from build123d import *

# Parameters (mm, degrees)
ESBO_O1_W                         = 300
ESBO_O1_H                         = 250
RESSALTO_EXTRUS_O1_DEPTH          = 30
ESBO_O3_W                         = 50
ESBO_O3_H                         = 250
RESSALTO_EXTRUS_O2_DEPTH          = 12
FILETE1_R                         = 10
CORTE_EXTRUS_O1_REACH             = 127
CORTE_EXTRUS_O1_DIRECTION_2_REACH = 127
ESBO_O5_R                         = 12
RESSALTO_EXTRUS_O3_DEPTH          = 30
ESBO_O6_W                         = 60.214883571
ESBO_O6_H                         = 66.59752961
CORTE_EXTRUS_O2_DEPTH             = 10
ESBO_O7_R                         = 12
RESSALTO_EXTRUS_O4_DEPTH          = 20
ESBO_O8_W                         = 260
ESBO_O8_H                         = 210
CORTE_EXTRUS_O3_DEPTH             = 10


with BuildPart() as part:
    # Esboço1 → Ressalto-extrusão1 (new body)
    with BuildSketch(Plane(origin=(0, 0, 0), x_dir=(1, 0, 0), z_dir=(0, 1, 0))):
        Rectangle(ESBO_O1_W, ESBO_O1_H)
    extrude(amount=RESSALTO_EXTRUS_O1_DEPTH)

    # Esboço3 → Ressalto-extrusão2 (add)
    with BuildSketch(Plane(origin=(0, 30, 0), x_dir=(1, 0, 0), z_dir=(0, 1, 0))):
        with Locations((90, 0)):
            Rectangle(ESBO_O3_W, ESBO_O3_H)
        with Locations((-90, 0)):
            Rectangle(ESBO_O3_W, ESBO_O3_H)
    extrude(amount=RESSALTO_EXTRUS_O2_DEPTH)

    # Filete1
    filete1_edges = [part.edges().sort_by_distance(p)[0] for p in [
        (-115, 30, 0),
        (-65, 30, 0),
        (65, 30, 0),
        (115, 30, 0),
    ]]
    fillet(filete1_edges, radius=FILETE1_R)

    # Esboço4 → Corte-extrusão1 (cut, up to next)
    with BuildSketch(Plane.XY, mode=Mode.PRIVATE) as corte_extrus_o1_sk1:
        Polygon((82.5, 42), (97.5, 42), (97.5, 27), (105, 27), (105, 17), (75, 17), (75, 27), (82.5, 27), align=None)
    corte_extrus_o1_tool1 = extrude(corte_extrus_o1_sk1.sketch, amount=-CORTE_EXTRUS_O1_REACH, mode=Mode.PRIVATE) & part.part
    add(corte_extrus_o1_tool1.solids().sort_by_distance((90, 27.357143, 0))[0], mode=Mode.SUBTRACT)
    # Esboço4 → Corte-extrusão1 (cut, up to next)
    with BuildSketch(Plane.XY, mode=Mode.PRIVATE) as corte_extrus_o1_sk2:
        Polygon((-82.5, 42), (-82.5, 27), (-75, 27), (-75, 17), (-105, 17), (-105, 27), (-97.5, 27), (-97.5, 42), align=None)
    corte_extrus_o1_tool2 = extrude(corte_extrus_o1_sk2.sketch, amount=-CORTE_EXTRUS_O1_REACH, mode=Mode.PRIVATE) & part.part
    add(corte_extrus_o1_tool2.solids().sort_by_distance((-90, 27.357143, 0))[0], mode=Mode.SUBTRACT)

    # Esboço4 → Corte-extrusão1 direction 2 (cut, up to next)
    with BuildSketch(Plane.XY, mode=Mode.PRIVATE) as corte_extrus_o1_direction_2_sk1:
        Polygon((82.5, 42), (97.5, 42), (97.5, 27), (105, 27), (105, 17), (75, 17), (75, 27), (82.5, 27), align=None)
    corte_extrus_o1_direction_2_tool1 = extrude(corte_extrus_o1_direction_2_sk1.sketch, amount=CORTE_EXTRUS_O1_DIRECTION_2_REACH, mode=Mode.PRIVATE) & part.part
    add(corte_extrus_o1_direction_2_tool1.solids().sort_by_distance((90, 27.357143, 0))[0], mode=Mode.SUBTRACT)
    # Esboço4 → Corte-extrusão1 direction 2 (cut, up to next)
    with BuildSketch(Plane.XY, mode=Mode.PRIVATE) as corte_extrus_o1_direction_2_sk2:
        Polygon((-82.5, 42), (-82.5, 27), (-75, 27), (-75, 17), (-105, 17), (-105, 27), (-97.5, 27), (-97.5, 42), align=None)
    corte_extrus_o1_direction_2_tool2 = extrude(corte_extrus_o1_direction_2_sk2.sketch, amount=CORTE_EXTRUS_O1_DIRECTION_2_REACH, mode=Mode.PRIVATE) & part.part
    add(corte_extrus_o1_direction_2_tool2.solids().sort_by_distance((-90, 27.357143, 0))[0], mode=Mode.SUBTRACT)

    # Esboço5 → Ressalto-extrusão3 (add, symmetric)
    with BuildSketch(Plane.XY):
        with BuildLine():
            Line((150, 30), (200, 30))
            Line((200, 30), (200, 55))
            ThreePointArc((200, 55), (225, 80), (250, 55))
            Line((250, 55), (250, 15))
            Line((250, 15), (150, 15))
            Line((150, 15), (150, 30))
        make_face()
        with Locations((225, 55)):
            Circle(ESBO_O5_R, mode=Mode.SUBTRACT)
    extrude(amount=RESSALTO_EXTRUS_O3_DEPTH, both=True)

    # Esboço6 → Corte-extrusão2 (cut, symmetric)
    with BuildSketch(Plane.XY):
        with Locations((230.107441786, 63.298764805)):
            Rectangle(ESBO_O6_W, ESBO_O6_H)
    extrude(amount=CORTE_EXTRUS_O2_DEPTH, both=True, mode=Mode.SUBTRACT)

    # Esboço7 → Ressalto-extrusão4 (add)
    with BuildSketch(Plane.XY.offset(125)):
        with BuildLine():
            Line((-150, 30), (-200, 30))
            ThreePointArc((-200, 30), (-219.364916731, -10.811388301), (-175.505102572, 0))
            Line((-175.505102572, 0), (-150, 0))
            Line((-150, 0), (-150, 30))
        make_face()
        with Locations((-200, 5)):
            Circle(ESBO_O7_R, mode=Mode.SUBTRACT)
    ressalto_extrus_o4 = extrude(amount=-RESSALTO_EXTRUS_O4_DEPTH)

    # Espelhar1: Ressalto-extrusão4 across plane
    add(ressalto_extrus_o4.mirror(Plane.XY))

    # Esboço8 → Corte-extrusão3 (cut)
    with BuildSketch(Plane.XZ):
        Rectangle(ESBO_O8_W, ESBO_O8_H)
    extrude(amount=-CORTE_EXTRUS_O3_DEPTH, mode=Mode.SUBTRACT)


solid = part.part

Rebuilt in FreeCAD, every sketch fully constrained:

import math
import FreeCAD as App
import Part
import Sketcher

V = App.Vector


def edges_at(feature, points):
    """Names of the edges that pass closest to the given points."""
    edges = feature.Shape.Edges
    near = lambda p: min(range(len(edges)), key=lambda i: edges[i].distToShape(Part.Vertex(*p))[0])
    return sorted({f"Edge{near(p) + 1}" for p in points})


def add_polygon(sketch, points):
    """Adds a closed chain of lines whose ends are joined by coincident constraints."""
    first, n = sketch.GeometryCount, len(points)
    for a, b in zip(points, points[1:] + points[:1]):
        sketch.addGeometry(Part.LineSegment(App.Vector(*a, 0), App.Vector(*b, 0)), False)
    for i in range(n):
        sketch.addConstraint(Sketcher.Constraint("Coincident", first + i, 2, first + (i + 1) % n, 1))

doc = App.newDocument("Part")
params = doc.addObject("Spreadsheet::Sheet", "Params")
for row, (alias, value) in enumerate([
    ("sketch1_width", "300 mm"),
    ("sketch1_height", "250 mm"),
    ("pad1_length", "30 mm"),
    ("sketch2_width", "50 mm"),
    ("sketch2_height", "250 mm"),
    ("pad2_length", "12 mm"),
    ("fillet_radius", "10 mm"),
    ("sketch3_width", "15 mm"),
    ("sketch3_width2", "30 mm"),
    ("sketch3_height", "10 mm"),
    ("sketch4_width", "15 mm"),
    ("sketch4_width2", "30 mm"),
    ("sketch4_height", "10 mm"),
    ("sketch5_width", "15 mm"),
    ("sketch5_width2", "30 mm"),
    ("sketch5_height", "10 mm"),
    ("sketch6_width", "15 mm"),
    ("sketch6_width2", "30 mm"),
    ("sketch6_height", "10 mm"),
    ("sketch7_diameter", "24 mm"),
    ("sketch7_radius", "25 mm"),
    ("sketch7_width", "50 mm"),
    ("sketch7_height", "15 mm"),
    ("sketch7_height2", "40 mm"),
    ("pad3_length", "60 mm"),
    ("pocket5_length", "20 mm"),
    ("sketch9_diameter", "24 mm"),
    ("sketch9_radius", "25 mm"),
    ("sketch9_width", "50 mm"),
    ("sketch9_height", "30 mm"),
    ("pad4_length", "20 mm"),
    ("sketch10_width", "260 mm"),
    ("sketch10_height", "210 mm"),
    ("pocket6_length", "10 mm"),
], start=1):
    params.set(f"A{row}", alias)
    params.set(f"B{row}", "=" + value)
    params.setAlias(f"B{row}", alias)

body = doc.addObject("PartDesign::Body", "Body")

sketch1 = doc.addObject("Sketcher::SketchObject", "Sketch")
body.addObject(sketch1)
sketch1.AttachmentSupport = (doc.XZ_Plane, [""])
sketch1.MapMode = "FlatFace"
add_polygon(sketch1, [(-150, -125), (-150, 125), (150, 125), (150, -125)])
sketch1.addConstraint([
    Sketcher.Constraint("Vertical", 0),
    Sketcher.Constraint("Horizontal", 1),
    Sketcher.Constraint("Vertical", 2),
    Sketcher.Constraint("Horizontal", 3),
    Sketcher.Constraint("Symmetric", 0, 2, 2, 2, -1, 1),
    Sketcher.Constraint("DistanceX", 1, 1, 1, 2, 300.0),
    Sketcher.Constraint("DistanceY", 0, 1, 0, 2, 250.0),
])
sketch1.setExpression("Constraints[9]", "Params.sketch1_width")
sketch1.setExpression("Constraints[10]", "Params.sketch1_height")
pad1 = doc.addObject("PartDesign::Pad", "Pad")
body.addObject(pad1)
pad1.Profile = sketch1
pad1.setExpression("Length", "Params.pad1_length")
pad1.Reversed = True

sketch2 = doc.addObject("Sketcher::SketchObject", "Sketch001")
body.addObject(sketch2)
sketch2.AttachmentSupport = (doc.XZ_Plane, [""])
sketch2.MapMode = "FlatFace"
sketch2.AttachmentOffset = App.Placement(V(0, 0, -30), App.Rotation())
add_polygon(sketch2, [(65, -125), (65, 125), (115, 125), (115, -125)])
add_polygon(sketch2, [(-115, -125), (-115, 125), (-65, 125), (-65, -125)])
sketch2.addConstraint([
    Sketcher.Constraint("Vertical", 0),
    Sketcher.Constraint("Horizontal", 1),
    Sketcher.Constraint("Vertical", 2),
    Sketcher.Constraint("Horizontal", 3),
    Sketcher.Constraint("Vertical", 4),
    Sketcher.Constraint("Horizontal", 5),
    Sketcher.Constraint("Vertical", 6),
    Sketcher.Constraint("Horizontal", 7),
    Sketcher.Constraint("Symmetric", 2, 2, 4, 2, -1, 1),
    Sketcher.Constraint("Symmetric", 0, 2, 6, 2, -1, 1),
    Sketcher.Constraint("Horizontal", 1, 2, 4, 2),
    Sketcher.Constraint("DistanceX", 1, 1, 1, 2, 50.0),
    Sketcher.Constraint("DistanceY", 0, 1, 0, 2, 250.0),
    Sketcher.Constraint("DistanceX", -1, 1, 0, 2, 65.0),
])
sketch2.setExpression("Constraints[19]", "Params.sketch2_width")
sketch2.setExpression("Constraints[20]", "Params.sketch2_height")
pad2 = doc.addObject("PartDesign::Pad", "Pad001")
body.addObject(pad2)
pad2.Profile = sketch2
pad2.setExpression("Length", "Params.pad2_length")
pad2.Reversed = True
doc.recompute()

fillet = doc.addObject("PartDesign::Fillet", "Fillet")
body.addObject(fillet)
fillet.Base = (pad2, edges_at(pad2, [
    (-115, 30, 0),
    (-65, 30, 0),
    (65, 30, 0),
    (115, 30, 0),
]))
fillet.setExpression("Radius", "Params.fillet_radius")

sketch3 = doc.addObject("Sketcher::SketchObject", "Sketch002")
body.addObject(sketch3)
sketch3.AttachmentSupport = (doc.XY_Plane, [""])
sketch3.MapMode = "FlatFace"
add_polygon(sketch3, [(98, 42), (82, 42), (82, 27), (75, 27), (75, 17), (105, 17), (105, 27), (98, 27)])
sketch3.addConstraint([
    Sketcher.Constraint("Horizontal", 0),
    Sketcher.Constraint("Vertical", 1),
    Sketcher.Constraint("Horizontal", 2),
    Sketcher.Constraint("Vertical", 3),
    Sketcher.Constraint("Horizontal", 4),
    Sketcher.Constraint("Vertical", 5),
    Sketcher.Constraint("Horizontal", 6),
    Sketcher.Constraint("Vertical", 7),
    Sketcher.Constraint("Horizontal", 2, 2, 5, 2),
    Sketcher.Constraint("Equal", 2, 6),
    Sketcher.Constraint("Equal", 0, 1),
    Sketcher.Constraint("DistanceX", 0, 2, 0, 1, 15.0),
    Sketcher.Constraint("DistanceX", 4, 1, 4, 2, 30.0),
    Sketcher.Constraint("DistanceY", 3, 2, 3, 1, 10.0),
    Sketcher.Constraint("DistanceY", -1, 1, 0, 2, 42.0),
    Sketcher.Constraint("DistanceX", -1, 1, 2, 2, 75.0),
])
sketch3.setExpression("Constraints[19]", "Params.sketch3_width")
sketch3.setExpression("Constraints[20]", "Params.sketch3_width2")
sketch3.setExpression("Constraints[21]", "Params.sketch3_height")
pocket1 = doc.addObject("PartDesign::Pocket", "Pocket")
body.addObject(pocket1)
pocket1.Profile = sketch3
pocket1.Type = "UpToFirst"

sketch4 = doc.addObject("Sketcher::SketchObject", "Sketch003")
body.addObject(sketch4)
sketch4.AttachmentSupport = (doc.XY_Plane, [""])
sketch4.MapMode = "FlatFace"
add_polygon(sketch4, [(-82, 27), (-82, 42), (-98, 42), (-98, 27), (-105, 27), (-105, 17), (-75, 17), (-75, 27)])
sketch4.addConstraint([
    Sketcher.Constraint("Vertical", 0),
    Sketcher.Constraint("Horizontal", 1),
    Sketcher.Constraint("Vertical", 2),
    Sketcher.Constraint("Horizontal", 3),
    Sketcher.Constraint("Vertical", 4),
    Sketcher.Constraint("Horizontal", 5),
    Sketcher.Constraint("Vertical", 6),
    Sketcher.Constraint("Horizontal", 7),
    Sketcher.Constraint("Horizontal", 3, 2, 6, 2),
    Sketcher.Constraint("Equal", 3, 7),
    Sketcher.Constraint("Equal", 1, 0),
    Sketcher.Constraint("DistanceX", 1, 2, 1, 1, 15.0),
    Sketcher.Constraint("DistanceX", 5, 1, 5, 2, 30.0),
    Sketcher.Constraint("DistanceY", 4, 2, 4, 1, 10.0),
    Sketcher.Constraint("DistanceY", -1, 1, 0, 2, 42.0),
    Sketcher.Constraint("DistanceX", 3, 2, -1, 1, 105.0),
])
sketch4.setExpression("Constraints[19]", "Params.sketch4_width")
sketch4.setExpression("Constraints[20]", "Params.sketch4_width2")
sketch4.setExpression("Constraints[21]", "Params.sketch4_height")
pocket2 = doc.addObject("PartDesign::Pocket", "Pocket001")
body.addObject(pocket2)
pocket2.Profile = sketch4
pocket2.Type = "UpToFirst"

sketch5 = doc.addObject("Sketcher::SketchObject", "Sketch004")
body.addObject(sketch5)
sketch5.AttachmentSupport = (doc.XY_Plane, [""])
sketch5.MapMode = "FlatFace"
add_polygon(sketch5, [(98, 42), (82, 42), (82, 27), (75, 27), (75, 17), (105, 17), (105, 27), (98, 27)])
sketch5.addConstraint([
    Sketcher.Constraint("Horizontal", 0),
    Sketcher.Constraint("Vertical", 1),
    Sketcher.Constraint("Horizontal", 2),
    Sketcher.Constraint("Vertical", 3),
    Sketcher.Constraint("Horizontal", 4),
    Sketcher.Constraint("Vertical", 5),
    Sketcher.Constraint("Horizontal", 6),
    Sketcher.Constraint("Vertical", 7),
    Sketcher.Constraint("Horizontal", 2, 2, 5, 2),
    Sketcher.Constraint("Equal", 2, 6),
    Sketcher.Constraint("Equal", 0, 1),
    Sketcher.Constraint("DistanceX", 0, 2, 0, 1, 15.0),
    Sketcher.Constraint("DistanceX", 4, 1, 4, 2, 30.0),
    Sketcher.Constraint("DistanceY", 3, 2, 3, 1, 10.0),
    Sketcher.Constraint("DistanceY", -1, 1, 0, 2, 42.0),
    Sketcher.Constraint("DistanceX", -1, 1, 2, 2, 75.0),
])
sketch5.setExpression("Constraints[19]", "Params.sketch5_width")
sketch5.setExpression("Constraints[20]", "Params.sketch5_width2")
sketch5.setExpression("Constraints[21]", "Params.sketch5_height")
pocket3 = doc.addObject("PartDesign::Pocket", "Pocket002")
body.addObject(pocket3)
pocket3.Profile = sketch5
pocket3.Type = "UpToFirst"
pocket3.Reversed = True

sketch6 = doc.addObject("Sketcher::SketchObject", "Sketch005")
body.addObject(sketch6)
sketch6.AttachmentSupport = (doc.XY_Plane, [""])
sketch6.MapMode = "FlatFace"
add_polygon(sketch6, [(-82, 27), (-82, 42), (-98, 42), (-98, 27), (-105, 27), (-105, 17), (-75, 17), (-75, 27)])
sketch6.addConstraint([
    Sketcher.Constraint("Vertical", 0),
    Sketcher.Constraint("Horizontal", 1),
    Sketcher.Constraint("Vertical", 2),
    Sketcher.Constraint("Horizontal", 3),
    Sketcher.Constraint("Vertical", 4),
    Sketcher.Constraint("Horizontal", 5),
    Sketcher.Constraint("Vertical", 6),
    Sketcher.Constraint("Horizontal", 7),
    Sketcher.Constraint("Horizontal", 3, 2, 6, 2),
    Sketcher.Constraint("Equal", 3, 7),
    Sketcher.Constraint("Equal", 1, 0),
    Sketcher.Constraint("DistanceX", 1, 2, 1, 1, 15.0),
    Sketcher.Constraint("DistanceX", 5, 1, 5, 2, 30.0),
    Sketcher.Constraint("DistanceY", 4, 2, 4, 1, 10.0),
    Sketcher.Constraint("DistanceY", -1, 1, 0, 2, 42.0),
    Sketcher.Constraint("DistanceX", 3, 2, -1, 1, 105.0),
])
sketch6.setExpression("Constraints[19]", "Params.sketch6_width")
sketch6.setExpression("Constraints[20]", "Params.sketch6_width2")
sketch6.setExpression("Constraints[21]", "Params.sketch6_height")
pocket4 = doc.addObject("PartDesign::Pocket", "Pocket003")
body.addObject(pocket4)
pocket4.Profile = sketch6
pocket4.Type = "UpToFirst"
pocket4.Reversed = True

sketch7 = doc.addObject("Sketcher::SketchObject", "Sketch006")
body.addObject(sketch7)
sketch7.AttachmentSupport = (doc.XY_Plane, [""])
sketch7.MapMode = "FlatFace"
sketch7.addGeometry([
    Part.LineSegment(V(200, 30, 0), V(150, 30, 0)),
    Part.LineSegment(V(150, 30, 0), V(150, 15, 0)),
    Part.LineSegment(V(150, 15, 0), V(250, 15, 0)),
    Part.LineSegment(V(250, 15, 0), V(250, 55, 0)),
    Part.ArcOfCircle(Part.Circle(V(225, 55, 0), V(0, 0, 1), 25), math.radians(0), math.radians(180)),
    Part.LineSegment(V(200, 55, 0), V(200, 30, 0)),
    Part.Circle(V(225, 55, 0), V(0, 0, 1), 12),
], False)
sketch7.addConstraint([
    Sketcher.Constraint("Coincident", 0, 2, 1, 1),
    Sketcher.Constraint("Coincident", 1, 2, 2, 1),
    Sketcher.Constraint("Coincident", 2, 2, 3, 1),
    Sketcher.Constraint("Tangent", 3, 2, 4, 1),
    Sketcher.Constraint("Tangent", 4, 2, 5, 1),
    Sketcher.Constraint("Coincident", 5, 2, 0, 1),
    Sketcher.Constraint("Horizontal", 0),
    Sketcher.Constraint("Vertical", 1),
    Sketcher.Constraint("Horizontal", 2),
    Sketcher.Constraint("Vertical", 3),
    Sketcher.Constraint("Vertical", 5),
    Sketcher.Constraint("Coincident", 6, 3, 4, 3),
    Sketcher.Constraint("Diameter", 6, 24.0),
    Sketcher.Constraint("Radius", 4, 25.0),
    Sketcher.Constraint("DistanceX", 0, 2, 0, 1, 50.0),
    Sketcher.Constraint("DistanceY", 1, 2, 1, 1, 15.0),
    Sketcher.Constraint("DistanceY", 3, 1, 3, 2, 40.0),
    Sketcher.Constraint("DistanceX", -1, 1, 4, 3, 225.0),
    Sketcher.Constraint("DistanceY", -1, 1, 4, 3, 55.0),
])
sketch7.setExpression("Constraints[12]", "Params.sketch7_diameter")
sketch7.setExpression("Constraints[13]", "Params.sketch7_radius")
sketch7.setExpression("Constraints[14]", "Params.sketch7_width")
sketch7.setExpression("Constraints[15]", "Params.sketch7_height")
sketch7.setExpression("Constraints[16]", "Params.sketch7_height2")
pad3 = doc.addObject("PartDesign::Pad", "Pad002")
body.addObject(pad3)
pad3.Profile = sketch7
pad3.setExpression("Length", "Params.pad3_length")
pad3.Midplane = True

sketch8 = doc.addObject("Sketcher::SketchObject", "Sketch007")
body.addObject(sketch8)
sketch8.AttachmentSupport = (doc.XY_Plane, [""])
sketch8.MapMode = "FlatFace"
add_polygon(sketch8, [(200, 97), (200, 30), (260, 30), (260, 97)])
sketch8.addConstraint([
    Sketcher.Constraint("Vertical", 0),
    Sketcher.Constraint("Horizontal", 1),
    Sketcher.Constraint("Vertical", 2),
    Sketcher.Constraint("Horizontal", 3),
    Sketcher.Constraint("DistanceX", -1, 1, 0, 2, 200.0),
    Sketcher.Constraint("DistanceY", -1, 1, 0, 2, 30.0),
    Sketcher.Constraint("DistanceY", 0, 2, 0, 1, 66.59753),
    Sketcher.Constraint("DistanceX", 1, 1, 1, 2, 60.214884),
])
pocket5 = doc.addObject("PartDesign::Pocket", "Pocket004")
body.addObject(pocket5)
pocket5.Profile = sketch8
pocket5.setExpression("Length", "Params.pocket5_length")
pocket5.Midplane = True

sketch9 = doc.addObject("Sketcher::SketchObject", "Sketch008")
body.addObject(sketch9)
sketch9.AttachmentSupport = (doc.XY_Plane, [""])
sketch9.MapMode = "FlatFace"
sketch9.AttachmentOffset = App.Placement(V(0, 0, 125), App.Rotation())
sketch9.addGeometry([
    Part.LineSegment(V(-150, 30, 0), V(-200, 30, 0)),
    Part.ArcOfCircle(Part.Circle(V(-200, 5, 0), V(0, 0, 1), 25), math.radians(90), math.radians(348)),
    Part.LineSegment(V(-176, 0, 0), V(-150, 0, 0)),
    Part.LineSegment(V(-150, 0, 0), V(-150, 30, 0)),
    Part.Circle(V(-200, 5, 0), V(0, 0, 1), 12),
], False)
sketch9.addConstraint([
    Sketcher.Constraint("Tangent", 0, 2, 1, 1),
    Sketcher.Constraint("Coincident", 1, 2, 2, 1),
    Sketcher.Constraint("Coincident", 2, 2, 3, 1),
    Sketcher.Constraint("Coincident", 3, 2, 0, 1),
    Sketcher.Constraint("Horizontal", 0),
    Sketcher.Constraint("Horizontal", 2),
    Sketcher.Constraint("Vertical", 3),
    Sketcher.Constraint("Coincident", 4, 3, 1, 3),
    Sketcher.Constraint("PointOnObject", 1, 2, -1),
    Sketcher.Constraint("Diameter", 4, 24.0),
    Sketcher.Constraint("Radius", 1, 25.0),
    Sketcher.Constraint("DistanceX", 0, 2, 0, 1, 50.0),
    Sketcher.Constraint("DistanceY", 3, 1, 3, 2, 30.0),
    Sketcher.Constraint("DistanceX", 1, 3, -1, 1, 200.0),
])
sketch9.setExpression("Constraints[9]", "Params.sketch9_diameter")
sketch9.setExpression("Constraints[10]", "Params.sketch9_radius")
sketch9.setExpression("Constraints[11]", "Params.sketch9_width")
sketch9.setExpression("Constraints[12]", "Params.sketch9_height")
pad4 = doc.addObject("PartDesign::Pad", "Pad003")
body.addObject(pad4)
pad4.Profile = sketch9
pad4.setExpression("Length", "Params.pad4_length")
pad4.Reversed = True
doc.recompute()

mirrored = doc.addObject("PartDesign::Mirrored", "Mirrored")
body.addObject(mirrored)
mirrored.Originals = [pad4]
mirrored.MirrorPlane = (doc.XY_Plane, [""])
body.Tip = mirrored

sketch10 = doc.addObject("Sketcher::SketchObject", "Sketch009")
body.addObject(sketch10)
sketch10.AttachmentSupport = (doc.XZ_Plane, [""])
sketch10.MapMode = "FlatFace"
add_polygon(sketch10, [(-130, 105), (-130, -105), (130, -105), (130, 105)])
sketch10.addConstraint([
    Sketcher.Constraint("Vertical", 0),
    Sketcher.Constraint("Horizontal", 1),
    Sketcher.Constraint("Vertical", 2),
    Sketcher.Constraint("Horizontal", 3),
    Sketcher.Constraint("Symmetric", 0, 2, 2, 2, -1, 1),
    Sketcher.Constraint("DistanceX", 1, 1, 1, 2, 260.0),
    Sketcher.Constraint("DistanceY", 0, 2, 0, 1, 210.0),
])
sketch10.setExpression("Constraints[9]", "Params.sketch10_width")
sketch10.setExpression("Constraints[10]", "Params.sketch10_height")
pocket6 = doc.addObject("PartDesign::Pocket", "Pocket005")
body.addObject(pocket6)
pocket6.Profile = sketch10
pocket6.setExpression("Length", "Params.pocket6_length")

doc.recompute()
